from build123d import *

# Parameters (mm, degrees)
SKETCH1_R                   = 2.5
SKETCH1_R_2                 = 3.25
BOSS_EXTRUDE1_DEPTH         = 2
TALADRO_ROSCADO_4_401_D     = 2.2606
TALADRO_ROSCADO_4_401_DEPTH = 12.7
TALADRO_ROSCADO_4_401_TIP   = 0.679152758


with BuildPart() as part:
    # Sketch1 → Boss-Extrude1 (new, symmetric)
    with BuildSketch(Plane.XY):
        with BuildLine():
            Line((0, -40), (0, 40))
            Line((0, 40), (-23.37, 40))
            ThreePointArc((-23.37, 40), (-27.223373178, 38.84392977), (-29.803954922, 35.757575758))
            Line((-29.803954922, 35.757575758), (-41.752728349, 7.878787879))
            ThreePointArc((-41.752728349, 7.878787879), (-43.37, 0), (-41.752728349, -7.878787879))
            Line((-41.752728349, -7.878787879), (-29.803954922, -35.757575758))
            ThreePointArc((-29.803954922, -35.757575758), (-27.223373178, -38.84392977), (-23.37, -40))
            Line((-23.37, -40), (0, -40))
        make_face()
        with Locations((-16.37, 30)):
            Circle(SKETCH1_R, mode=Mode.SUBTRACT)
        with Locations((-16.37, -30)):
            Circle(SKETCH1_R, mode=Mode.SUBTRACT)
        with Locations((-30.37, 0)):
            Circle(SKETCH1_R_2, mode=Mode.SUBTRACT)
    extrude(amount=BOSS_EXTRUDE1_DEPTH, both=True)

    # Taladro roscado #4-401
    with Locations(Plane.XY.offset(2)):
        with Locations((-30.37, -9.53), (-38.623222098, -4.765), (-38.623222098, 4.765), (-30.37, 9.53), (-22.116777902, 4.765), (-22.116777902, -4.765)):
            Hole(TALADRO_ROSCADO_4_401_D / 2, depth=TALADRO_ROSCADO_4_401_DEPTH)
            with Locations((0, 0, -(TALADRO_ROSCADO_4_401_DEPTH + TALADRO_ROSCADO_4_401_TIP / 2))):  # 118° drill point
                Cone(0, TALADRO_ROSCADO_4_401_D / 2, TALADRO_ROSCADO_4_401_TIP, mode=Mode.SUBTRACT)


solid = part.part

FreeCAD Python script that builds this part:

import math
import FreeCAD as App
import Part
import Sketcher
from FreeCAD import Vector
Q = App.Units.Quantity

doc = App.newDocument("Part")
body = doc.addObject("PartDesign::Body", "Body")

# Sketch on XY plane
sketch1 = body.newObject("Sketcher::SketchObject", "Sketch")
sketch1.AttachmentSupport = (doc.getObject("XY_Plane"), [""])
sketch1.MapMode = "FlatFace"
sketch1.addGeometry([
    Part.LineSegment(Vector(0, -40, 0), Vector(0, 40, 0)),  # 0
    Part.LineSegment(Vector(0, 40, 0), Vector(-23.4, 40, 0)),  # 1
    Part.ArcOfCircle(Part.Circle(Vector(-23.4, 33, 0), Vector(0, 0, 1), 7), math.radians(90), math.radians(157)),  # 2
    Part.LineSegment(Vector(-29.8, 35.8, 0), Vector(-41.8, 7.9, 0)),  # 3
    Part.ArcOfCircle(Part.Circle(Vector(-23.4, 0, 0), Vector(0, 0, 1), 20), math.radians(157), math.radians(203)),  # 4
    Part.LineSegment(Vector(-41.8, -7.9, 0), Vector(-29.8, -35.8, 0)),  # 5
    Part.ArcOfCircle(Part.Circle(Vector(-23.4, -33, 0), Vector(0, 0, 1), 7), math.radians(-157), math.radians(-90)),  # 6
    Part.LineSegment(Vector(-23.4, -40, 0), Vector(0, -40, 0)),  # 7
    Part.Circle(Vector(-16.4, -30, 0), Vector(0, 0, 1), 2.5),  # 8
    Part.Circle(Vector(-30.4, 0, 0), Vector(0, 0, 1), 3.2),  # 9
    Part.Circle(Vector(-16.4, 30, 0), Vector(0, 0, 1), 2.5),  # 10
], False)
sketch1.addConstraint([
    Sketcher.Constraint("Coincident", 0, 2, 1, 1),
    Sketcher.Constraint("Tangent", 1, 2, 2, 1),
    Sketcher.Constraint("Tangent", 2, 2, 3, 1),
    Sketcher.Constraint("Tangent", 3, 2, 4, 1),
    Sketcher.Constraint("Tangent", 4, 2, 5, 1),
    Sketcher.Constraint("Tangent", 5, 2, 6, 1),
    Sketcher.Constraint("Tangent", 6, 2, 7, 1),
    Sketcher.Constraint("Coincident", 7, 2, 0, 1),
    Sketcher.Constraint("Vertical", 0),
    Sketcher.Constraint("Horizontal", 1),
    Sketcher.Constraint("Horizontal", 7),
    Sketcher.Constraint("Equal", 2, 6),
    Sketcher.Constraint("Equal", 8, 10),
    Sketcher.Constraint("Symmetric", 0, 2, 7, 2, -1, 1),
    Sketcher.Constraint("Symmetric", 8, 3, 10, 3, -1),
    Sketcher.Constraint("Symmetric", 3, 2, 4, 2, -1),
    Sketcher.Constraint("PointOnObject", 9, 3, -1),
    Sketcher.Constraint("Vertical", 2, 3, 4, 3),
    Sketcher.Constraint("Diameter", 8, Q("5 mm")),
    Sketcher.Constraint("Radius", 2, Q("7 mm")),
    Sketcher.Constraint("Radius", 4, Q("20 mm")),
    Sketcher.Constraint("Diameter", 9, Q("6.5 mm")),
    Sketcher.Constraint("DistanceY", 0, 1, 0, 2, Q("80 mm")),
    Sketcher.Constraint("DistanceY", 8, 3, -1, 1, Q("30 mm")),
    Sketcher.Constraint("DistanceX", 6, 3, 8, 3, Q("7 mm")),
    Sketcher.Constraint("DistanceX", 9, 3, 4, 3, Q("7 mm")),
    Sketcher.Constraint("DistanceX", 1, 2, 1, 1, Q("23.37 mm")),
])
pad1 = body.newObject("PartDesign::Pad", "Pad")
pad1.Profile = sketch1
pad1.Length = 4
pad1.Midplane = True

# Sketch on XY plane
sketch2 = body.newObject("Sketcher::SketchObject", "Sketch001")
sketch2.AttachmentSupport = (doc.getObject("XY_Plane"), [""])
sketch2.MapMode = "FlatFace"
sketch2.AttachmentOffset = App.Placement(Vector(0, 0, 2), App.Rotation())
sketch2.addGeometry([
    Part.Circle(Vector(-30.4, -9.5, 0), Vector(0, 0, 1), 1.1),  # 0
    Part.Circle(Vector(-38.6, -4.8, 0), Vector(0, 0, 1), 1.1),  # 1
    Part.Circle(Vector(-38.6, 4.8, 0), Vector(0, 0, 1), 1.1),  # 2
    Part.Circle(Vector(-30.4, 9.5, 0), Vector(0, 0, 1), 1.1),  # 3
    Part.Circle(Vector(-22.1, 4.8, 0), Vector(0, 0, 1), 1.1),  # 4
    Part.Circle(Vector(-22.1, -4.8, 0), Vector(0, 0, 1), 1.1),  # 5
], False)
sketch2.addConstraint([
    Sketcher.Constraint("Equal", 0, 1),
    Sketcher.Constraint("Equal", 1, 2),
    Sketcher.Constraint("Equal", 2, 3),
    Sketcher.Constraint("Equal", 3, 4),
    Sketcher.Constraint("Equal", 4, 5),
    Sketcher.Constraint("Symmetric", 1, 3, 2, 3, -1),
    Sketcher.Constraint("Symmetric", 0, 3, 3, 3, -1),
    Sketcher.Constraint("Symmetric", 4, 3, 5, 3, -1),
    Sketcher.Constraint("Horizontal", 2, 3, 4, 3),
    Sketcher.Constraint("Diameter", 0, Q("2.2606 mm")),
    Sketcher.Constraint("DistanceX", 0, 3, -1, 1, Q("30.37 mm")),
    Sketcher.Constraint("DistanceY", 0, 3, -1, 1, Q("9.53 mm")),
    Sketcher.Constraint("DistanceY", 1, 3, 2, 3, Q("9.53 mm")),
    Sketcher.Constraint("DistanceX", 1, 3, -1, 1, Q("38.623222 mm")),
    Sketcher.Constraint("DistanceX", 4, 3, -1, 1, Q("22.116778 mm")),
])
doc.recompute()
hole = body.newObject("PartDesign::Hole", "Hole")
hole.Profile = sketch2
hole.ThreadType = "None"
hole.Diameter = 2.2606
hole.DepthType = "Dimension"
hole.Depth = 12.7
hole.DrillPoint = "Angled"
hole.DrillPointAngle = 118

doc.recompute()
